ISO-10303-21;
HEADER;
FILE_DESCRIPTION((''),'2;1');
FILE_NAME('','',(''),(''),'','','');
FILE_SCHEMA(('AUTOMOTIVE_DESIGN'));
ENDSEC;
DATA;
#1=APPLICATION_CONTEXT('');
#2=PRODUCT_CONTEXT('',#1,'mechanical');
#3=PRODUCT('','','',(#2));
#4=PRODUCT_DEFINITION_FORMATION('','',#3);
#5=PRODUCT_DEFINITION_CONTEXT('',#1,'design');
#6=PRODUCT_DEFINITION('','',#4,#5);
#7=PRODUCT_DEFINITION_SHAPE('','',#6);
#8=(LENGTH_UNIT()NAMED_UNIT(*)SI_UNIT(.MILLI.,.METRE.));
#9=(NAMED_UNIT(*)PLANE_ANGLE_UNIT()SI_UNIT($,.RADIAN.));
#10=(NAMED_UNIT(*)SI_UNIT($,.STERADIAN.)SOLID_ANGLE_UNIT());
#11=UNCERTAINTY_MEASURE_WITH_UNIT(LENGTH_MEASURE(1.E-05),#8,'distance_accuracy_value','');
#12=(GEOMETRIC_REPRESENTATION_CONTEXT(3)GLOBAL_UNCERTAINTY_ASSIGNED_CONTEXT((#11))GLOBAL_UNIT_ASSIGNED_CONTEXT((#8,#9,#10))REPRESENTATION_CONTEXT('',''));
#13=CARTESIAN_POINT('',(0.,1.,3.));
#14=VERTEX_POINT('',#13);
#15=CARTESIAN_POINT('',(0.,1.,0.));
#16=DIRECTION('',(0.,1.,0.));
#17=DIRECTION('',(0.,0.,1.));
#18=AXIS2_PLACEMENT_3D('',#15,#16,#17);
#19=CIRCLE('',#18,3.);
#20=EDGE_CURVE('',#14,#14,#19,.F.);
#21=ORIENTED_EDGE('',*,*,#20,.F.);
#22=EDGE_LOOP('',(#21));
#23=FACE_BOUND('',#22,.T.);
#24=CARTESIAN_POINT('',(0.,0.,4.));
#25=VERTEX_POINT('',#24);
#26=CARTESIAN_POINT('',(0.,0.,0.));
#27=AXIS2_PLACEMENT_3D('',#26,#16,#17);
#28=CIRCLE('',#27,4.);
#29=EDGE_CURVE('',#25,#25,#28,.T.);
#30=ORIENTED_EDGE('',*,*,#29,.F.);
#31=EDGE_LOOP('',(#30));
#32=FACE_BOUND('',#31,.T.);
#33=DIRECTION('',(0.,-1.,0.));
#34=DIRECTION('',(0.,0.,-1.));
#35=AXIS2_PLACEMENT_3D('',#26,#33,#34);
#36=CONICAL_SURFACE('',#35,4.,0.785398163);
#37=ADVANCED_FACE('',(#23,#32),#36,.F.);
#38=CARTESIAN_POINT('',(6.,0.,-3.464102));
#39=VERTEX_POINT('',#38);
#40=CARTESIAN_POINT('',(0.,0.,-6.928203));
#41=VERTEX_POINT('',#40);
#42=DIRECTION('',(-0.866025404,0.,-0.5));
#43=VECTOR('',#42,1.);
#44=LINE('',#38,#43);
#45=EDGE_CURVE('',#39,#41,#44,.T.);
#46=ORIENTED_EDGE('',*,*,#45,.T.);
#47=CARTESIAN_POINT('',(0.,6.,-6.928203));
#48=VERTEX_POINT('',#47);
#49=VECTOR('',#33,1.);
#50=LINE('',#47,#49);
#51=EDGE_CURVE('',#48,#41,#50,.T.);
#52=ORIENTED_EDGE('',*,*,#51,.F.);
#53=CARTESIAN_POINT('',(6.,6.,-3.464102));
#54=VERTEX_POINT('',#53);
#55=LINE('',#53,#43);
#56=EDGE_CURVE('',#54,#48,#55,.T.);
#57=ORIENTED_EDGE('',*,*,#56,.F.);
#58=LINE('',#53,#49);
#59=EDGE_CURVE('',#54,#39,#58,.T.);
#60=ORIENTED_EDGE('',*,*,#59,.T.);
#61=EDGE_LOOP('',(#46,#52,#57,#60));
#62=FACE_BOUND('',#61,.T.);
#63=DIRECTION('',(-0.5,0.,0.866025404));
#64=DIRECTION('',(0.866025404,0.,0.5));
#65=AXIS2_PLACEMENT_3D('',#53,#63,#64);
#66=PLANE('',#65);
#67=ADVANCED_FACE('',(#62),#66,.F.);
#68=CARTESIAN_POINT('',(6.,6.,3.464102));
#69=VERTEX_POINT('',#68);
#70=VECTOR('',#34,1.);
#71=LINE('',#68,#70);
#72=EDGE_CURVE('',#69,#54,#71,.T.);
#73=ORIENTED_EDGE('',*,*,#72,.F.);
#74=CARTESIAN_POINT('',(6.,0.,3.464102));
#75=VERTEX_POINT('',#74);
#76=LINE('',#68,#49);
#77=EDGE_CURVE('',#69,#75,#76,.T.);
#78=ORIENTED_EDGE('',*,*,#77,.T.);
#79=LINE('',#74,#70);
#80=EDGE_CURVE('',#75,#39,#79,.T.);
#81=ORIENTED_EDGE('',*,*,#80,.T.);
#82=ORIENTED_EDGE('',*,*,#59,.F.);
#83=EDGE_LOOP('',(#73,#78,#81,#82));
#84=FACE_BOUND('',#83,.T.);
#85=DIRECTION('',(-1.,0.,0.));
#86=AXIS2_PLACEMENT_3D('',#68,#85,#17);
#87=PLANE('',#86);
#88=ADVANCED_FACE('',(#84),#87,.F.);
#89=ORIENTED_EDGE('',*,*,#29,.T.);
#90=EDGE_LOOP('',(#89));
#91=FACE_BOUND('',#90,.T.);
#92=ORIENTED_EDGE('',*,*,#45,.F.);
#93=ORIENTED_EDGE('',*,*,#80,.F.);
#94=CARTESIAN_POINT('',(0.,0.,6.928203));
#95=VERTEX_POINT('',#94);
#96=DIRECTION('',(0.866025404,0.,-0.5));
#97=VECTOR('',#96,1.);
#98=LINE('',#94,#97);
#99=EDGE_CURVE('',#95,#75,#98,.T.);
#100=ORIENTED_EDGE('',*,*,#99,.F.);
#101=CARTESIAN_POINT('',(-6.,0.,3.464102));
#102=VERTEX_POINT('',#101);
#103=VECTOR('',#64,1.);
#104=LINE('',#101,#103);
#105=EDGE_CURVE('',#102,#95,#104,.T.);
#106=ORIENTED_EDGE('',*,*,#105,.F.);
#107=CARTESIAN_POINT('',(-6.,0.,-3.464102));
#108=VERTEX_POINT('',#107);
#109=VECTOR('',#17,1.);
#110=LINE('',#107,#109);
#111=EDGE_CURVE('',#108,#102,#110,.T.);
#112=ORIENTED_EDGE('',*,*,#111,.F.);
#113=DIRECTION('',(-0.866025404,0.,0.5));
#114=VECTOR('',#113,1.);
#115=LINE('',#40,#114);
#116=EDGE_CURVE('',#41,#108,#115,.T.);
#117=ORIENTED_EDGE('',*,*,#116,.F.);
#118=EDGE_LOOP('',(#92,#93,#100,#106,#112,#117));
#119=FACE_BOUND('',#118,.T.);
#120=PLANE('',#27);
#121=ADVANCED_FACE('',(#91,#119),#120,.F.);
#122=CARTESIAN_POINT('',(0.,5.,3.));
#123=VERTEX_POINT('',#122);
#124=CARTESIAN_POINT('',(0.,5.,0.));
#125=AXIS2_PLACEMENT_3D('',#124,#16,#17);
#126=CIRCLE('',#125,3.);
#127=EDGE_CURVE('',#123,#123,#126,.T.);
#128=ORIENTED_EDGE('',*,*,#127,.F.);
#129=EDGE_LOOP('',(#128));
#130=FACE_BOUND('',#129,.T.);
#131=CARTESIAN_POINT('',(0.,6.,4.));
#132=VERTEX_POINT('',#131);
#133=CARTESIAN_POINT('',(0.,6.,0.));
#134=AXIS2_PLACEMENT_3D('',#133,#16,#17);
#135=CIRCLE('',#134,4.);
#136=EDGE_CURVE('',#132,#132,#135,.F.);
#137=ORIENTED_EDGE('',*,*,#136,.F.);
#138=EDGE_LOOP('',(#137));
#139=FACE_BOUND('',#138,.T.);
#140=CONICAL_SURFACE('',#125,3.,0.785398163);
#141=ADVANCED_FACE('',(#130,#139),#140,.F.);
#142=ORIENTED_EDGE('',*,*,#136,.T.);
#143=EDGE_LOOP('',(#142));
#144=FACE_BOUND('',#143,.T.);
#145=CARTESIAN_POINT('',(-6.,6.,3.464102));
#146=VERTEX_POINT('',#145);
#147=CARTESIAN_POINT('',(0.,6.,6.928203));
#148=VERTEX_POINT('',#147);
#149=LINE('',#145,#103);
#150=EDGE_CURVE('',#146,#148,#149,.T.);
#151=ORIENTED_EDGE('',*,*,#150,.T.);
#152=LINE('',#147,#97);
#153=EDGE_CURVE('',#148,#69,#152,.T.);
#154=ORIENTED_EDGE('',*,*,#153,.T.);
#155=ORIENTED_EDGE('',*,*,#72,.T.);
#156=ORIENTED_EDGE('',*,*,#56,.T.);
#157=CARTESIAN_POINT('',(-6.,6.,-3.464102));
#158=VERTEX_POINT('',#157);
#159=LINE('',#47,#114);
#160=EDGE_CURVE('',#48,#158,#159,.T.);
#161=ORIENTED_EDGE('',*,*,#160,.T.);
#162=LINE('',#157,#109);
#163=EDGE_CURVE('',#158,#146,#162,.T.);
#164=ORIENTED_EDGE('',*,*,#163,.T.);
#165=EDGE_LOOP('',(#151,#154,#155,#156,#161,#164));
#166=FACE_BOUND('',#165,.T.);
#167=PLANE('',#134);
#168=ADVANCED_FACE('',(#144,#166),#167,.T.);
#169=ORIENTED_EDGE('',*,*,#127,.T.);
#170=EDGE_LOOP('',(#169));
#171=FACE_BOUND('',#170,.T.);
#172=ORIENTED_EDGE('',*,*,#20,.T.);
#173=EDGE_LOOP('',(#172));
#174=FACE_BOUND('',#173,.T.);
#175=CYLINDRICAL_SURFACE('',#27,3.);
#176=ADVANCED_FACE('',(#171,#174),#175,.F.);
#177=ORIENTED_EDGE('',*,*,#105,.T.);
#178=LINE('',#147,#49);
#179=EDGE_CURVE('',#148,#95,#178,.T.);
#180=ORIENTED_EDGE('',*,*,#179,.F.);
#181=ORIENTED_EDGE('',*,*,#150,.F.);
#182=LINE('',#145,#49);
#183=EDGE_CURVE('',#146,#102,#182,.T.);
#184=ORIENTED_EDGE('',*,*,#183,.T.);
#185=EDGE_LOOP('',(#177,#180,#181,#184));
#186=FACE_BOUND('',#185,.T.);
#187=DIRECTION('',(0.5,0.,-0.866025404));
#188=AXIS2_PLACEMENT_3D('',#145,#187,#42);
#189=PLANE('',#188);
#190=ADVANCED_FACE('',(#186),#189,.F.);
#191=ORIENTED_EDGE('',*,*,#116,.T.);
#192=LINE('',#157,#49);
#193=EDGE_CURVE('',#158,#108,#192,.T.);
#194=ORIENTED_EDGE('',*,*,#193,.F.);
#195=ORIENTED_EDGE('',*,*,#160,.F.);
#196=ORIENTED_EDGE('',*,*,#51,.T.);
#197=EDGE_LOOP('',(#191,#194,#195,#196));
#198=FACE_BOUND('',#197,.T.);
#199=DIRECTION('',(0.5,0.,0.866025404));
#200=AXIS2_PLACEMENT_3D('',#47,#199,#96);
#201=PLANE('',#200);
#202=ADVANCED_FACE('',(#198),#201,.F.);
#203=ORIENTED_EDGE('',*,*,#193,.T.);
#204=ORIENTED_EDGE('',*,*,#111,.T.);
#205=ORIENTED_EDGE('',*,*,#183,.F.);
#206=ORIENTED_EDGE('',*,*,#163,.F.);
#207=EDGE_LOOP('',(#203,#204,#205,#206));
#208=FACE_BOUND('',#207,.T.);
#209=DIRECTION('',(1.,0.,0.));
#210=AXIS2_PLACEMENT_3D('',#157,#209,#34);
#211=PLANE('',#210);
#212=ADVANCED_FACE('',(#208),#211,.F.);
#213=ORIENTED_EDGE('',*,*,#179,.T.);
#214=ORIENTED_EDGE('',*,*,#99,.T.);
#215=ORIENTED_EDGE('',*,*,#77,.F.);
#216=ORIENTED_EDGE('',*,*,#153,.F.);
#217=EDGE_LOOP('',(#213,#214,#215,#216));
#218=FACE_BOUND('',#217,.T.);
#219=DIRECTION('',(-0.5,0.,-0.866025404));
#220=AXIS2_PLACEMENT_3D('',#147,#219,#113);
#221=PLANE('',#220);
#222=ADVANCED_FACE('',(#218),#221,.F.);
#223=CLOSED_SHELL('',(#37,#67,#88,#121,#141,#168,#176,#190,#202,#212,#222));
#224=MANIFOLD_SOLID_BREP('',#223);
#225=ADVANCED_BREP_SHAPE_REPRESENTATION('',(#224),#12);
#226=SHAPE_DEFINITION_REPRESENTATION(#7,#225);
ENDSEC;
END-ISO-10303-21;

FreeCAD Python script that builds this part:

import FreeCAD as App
import Part
import Sketcher
from FreeCAD import Vector
Q = App.Units.Quantity


def edges_at(feature, points):
    """Names of the edges that pass closest to the given points."""
    edges = feature.Shape.Edges
    near = lambda p: min(range(len(edges)), key=lambda i: edges[i].distToShape(Part.Vertex(*p))[0])
    return sorted({f"Edge{near(p) + 1}" for p in points})

doc = App.newDocument("Part")
body = doc.addObject("PartDesign::Body", "Body")

# Sketch on XZ plane
sketch1 = body.newObject("Sketcher::SketchObject", "Sketch")
sketch1.AttachmentSupport = (doc.getObject("XZ_Plane"), [""])
sketch1.MapMode = "FlatFace"
sketch1.addGeometry([
    Part.LineSegment(Vector(0, -7, 0), Vector(-6, -3, 0)),  # 0
    Part.LineSegment(Vector(-6, -3, 0), Vector(-6, 3, 0)),  # 1
    Part.LineSegment(Vector(-6, 3, 0), Vector(0, 7, 0)),  # 2
    Part.LineSegment(Vector(0, 7, 0), Vector(6, 3, 0)),  # 3
    Part.LineSegment(Vector(6, 3, 0), Vector(6, -3, 0)),  # 4
    Part.LineSegment(Vector(6, -3, 0), Vector(0, -7, 0)),  # 5
], False)
sketch1.addConstraint([
    Sketcher.Constraint("Coincident", 0, 2, 1, 1),
    Sketcher.Constraint("Coincident", 1, 2, 2, 1),
    Sketcher.Constraint("Coincident", 2, 2, 3, 1),
    Sketcher.Constraint("Coincident", 3, 2, 4, 1),
    Sketcher.Constraint("Coincident", 4, 2, 5, 1),
    Sketcher.Constraint("Coincident", 5, 2, 0, 1),
    Sketcher.Constraint("Vertical", 1),
    Sketcher.Constraint("Vertical", 4),
    Sketcher.Constraint("Symmetric", 0, 2, 3, 2, -1, 1),
    Sketcher.Constraint("Symmetric", 2, 2, 5, 2, -1, 1),
    Sketcher.Constraint("PointOnObject", 2, 2, -2),
    Sketcher.Constraint("Parallel", 2, 5),
    Sketcher.Constraint("Horizontal", 1, 2, 3, 2),
    Sketcher.Constraint("Angle", 0, Q("150 deg")),
    Sketcher.Constraint("DistanceX", 0, 2, -1, 1, Q("6 mm")),
    Sketcher.Constraint("DistanceY", 0, 2, -1, 1, Q("3.464102 mm")),
])
pad1 = body.newObject("PartDesign::Pad", "Pad")
pad1.Profile = sketch1
pad1.Length = 6
pad1.Reversed = True

# Sketch on XZ plane
sketch2 = body.newObject("Sketcher::SketchObject", "Sketch001")
sketch2.AttachmentSupport = (doc.getObject("XZ_Plane"), [""])
sketch2.MapMode = "FlatFace"
sketch2.AttachmentOffset = App.Placement(Vector(0, 0, -6), App.Rotation())
sketch2.addGeometry(Part.Circle(Vector(0, 0, 0), Vector(0, 0, 1), 3), False)
sketch2.addConstraint([
    Sketcher.Constraint("Coincident", 0, 3, -1, 1),
    Sketcher.Constraint("Diameter", 0, Q("6 mm")),
])
pocket1 = body.newObject("PartDesign::Pocket", "Pocket")
pocket1.Profile = sketch2
pocket1.Length = 6
pocket1.Reversed = True
doc.recompute()

chamfer = body.newObject("PartDesign::Chamfer", "Chamfer")
chamfer.Base = (pocket1, edges_at(pocket1, [(-3, 0, 0), (-3, 6, 0)]))
chamfer.Size = 1

doc.recompute()
